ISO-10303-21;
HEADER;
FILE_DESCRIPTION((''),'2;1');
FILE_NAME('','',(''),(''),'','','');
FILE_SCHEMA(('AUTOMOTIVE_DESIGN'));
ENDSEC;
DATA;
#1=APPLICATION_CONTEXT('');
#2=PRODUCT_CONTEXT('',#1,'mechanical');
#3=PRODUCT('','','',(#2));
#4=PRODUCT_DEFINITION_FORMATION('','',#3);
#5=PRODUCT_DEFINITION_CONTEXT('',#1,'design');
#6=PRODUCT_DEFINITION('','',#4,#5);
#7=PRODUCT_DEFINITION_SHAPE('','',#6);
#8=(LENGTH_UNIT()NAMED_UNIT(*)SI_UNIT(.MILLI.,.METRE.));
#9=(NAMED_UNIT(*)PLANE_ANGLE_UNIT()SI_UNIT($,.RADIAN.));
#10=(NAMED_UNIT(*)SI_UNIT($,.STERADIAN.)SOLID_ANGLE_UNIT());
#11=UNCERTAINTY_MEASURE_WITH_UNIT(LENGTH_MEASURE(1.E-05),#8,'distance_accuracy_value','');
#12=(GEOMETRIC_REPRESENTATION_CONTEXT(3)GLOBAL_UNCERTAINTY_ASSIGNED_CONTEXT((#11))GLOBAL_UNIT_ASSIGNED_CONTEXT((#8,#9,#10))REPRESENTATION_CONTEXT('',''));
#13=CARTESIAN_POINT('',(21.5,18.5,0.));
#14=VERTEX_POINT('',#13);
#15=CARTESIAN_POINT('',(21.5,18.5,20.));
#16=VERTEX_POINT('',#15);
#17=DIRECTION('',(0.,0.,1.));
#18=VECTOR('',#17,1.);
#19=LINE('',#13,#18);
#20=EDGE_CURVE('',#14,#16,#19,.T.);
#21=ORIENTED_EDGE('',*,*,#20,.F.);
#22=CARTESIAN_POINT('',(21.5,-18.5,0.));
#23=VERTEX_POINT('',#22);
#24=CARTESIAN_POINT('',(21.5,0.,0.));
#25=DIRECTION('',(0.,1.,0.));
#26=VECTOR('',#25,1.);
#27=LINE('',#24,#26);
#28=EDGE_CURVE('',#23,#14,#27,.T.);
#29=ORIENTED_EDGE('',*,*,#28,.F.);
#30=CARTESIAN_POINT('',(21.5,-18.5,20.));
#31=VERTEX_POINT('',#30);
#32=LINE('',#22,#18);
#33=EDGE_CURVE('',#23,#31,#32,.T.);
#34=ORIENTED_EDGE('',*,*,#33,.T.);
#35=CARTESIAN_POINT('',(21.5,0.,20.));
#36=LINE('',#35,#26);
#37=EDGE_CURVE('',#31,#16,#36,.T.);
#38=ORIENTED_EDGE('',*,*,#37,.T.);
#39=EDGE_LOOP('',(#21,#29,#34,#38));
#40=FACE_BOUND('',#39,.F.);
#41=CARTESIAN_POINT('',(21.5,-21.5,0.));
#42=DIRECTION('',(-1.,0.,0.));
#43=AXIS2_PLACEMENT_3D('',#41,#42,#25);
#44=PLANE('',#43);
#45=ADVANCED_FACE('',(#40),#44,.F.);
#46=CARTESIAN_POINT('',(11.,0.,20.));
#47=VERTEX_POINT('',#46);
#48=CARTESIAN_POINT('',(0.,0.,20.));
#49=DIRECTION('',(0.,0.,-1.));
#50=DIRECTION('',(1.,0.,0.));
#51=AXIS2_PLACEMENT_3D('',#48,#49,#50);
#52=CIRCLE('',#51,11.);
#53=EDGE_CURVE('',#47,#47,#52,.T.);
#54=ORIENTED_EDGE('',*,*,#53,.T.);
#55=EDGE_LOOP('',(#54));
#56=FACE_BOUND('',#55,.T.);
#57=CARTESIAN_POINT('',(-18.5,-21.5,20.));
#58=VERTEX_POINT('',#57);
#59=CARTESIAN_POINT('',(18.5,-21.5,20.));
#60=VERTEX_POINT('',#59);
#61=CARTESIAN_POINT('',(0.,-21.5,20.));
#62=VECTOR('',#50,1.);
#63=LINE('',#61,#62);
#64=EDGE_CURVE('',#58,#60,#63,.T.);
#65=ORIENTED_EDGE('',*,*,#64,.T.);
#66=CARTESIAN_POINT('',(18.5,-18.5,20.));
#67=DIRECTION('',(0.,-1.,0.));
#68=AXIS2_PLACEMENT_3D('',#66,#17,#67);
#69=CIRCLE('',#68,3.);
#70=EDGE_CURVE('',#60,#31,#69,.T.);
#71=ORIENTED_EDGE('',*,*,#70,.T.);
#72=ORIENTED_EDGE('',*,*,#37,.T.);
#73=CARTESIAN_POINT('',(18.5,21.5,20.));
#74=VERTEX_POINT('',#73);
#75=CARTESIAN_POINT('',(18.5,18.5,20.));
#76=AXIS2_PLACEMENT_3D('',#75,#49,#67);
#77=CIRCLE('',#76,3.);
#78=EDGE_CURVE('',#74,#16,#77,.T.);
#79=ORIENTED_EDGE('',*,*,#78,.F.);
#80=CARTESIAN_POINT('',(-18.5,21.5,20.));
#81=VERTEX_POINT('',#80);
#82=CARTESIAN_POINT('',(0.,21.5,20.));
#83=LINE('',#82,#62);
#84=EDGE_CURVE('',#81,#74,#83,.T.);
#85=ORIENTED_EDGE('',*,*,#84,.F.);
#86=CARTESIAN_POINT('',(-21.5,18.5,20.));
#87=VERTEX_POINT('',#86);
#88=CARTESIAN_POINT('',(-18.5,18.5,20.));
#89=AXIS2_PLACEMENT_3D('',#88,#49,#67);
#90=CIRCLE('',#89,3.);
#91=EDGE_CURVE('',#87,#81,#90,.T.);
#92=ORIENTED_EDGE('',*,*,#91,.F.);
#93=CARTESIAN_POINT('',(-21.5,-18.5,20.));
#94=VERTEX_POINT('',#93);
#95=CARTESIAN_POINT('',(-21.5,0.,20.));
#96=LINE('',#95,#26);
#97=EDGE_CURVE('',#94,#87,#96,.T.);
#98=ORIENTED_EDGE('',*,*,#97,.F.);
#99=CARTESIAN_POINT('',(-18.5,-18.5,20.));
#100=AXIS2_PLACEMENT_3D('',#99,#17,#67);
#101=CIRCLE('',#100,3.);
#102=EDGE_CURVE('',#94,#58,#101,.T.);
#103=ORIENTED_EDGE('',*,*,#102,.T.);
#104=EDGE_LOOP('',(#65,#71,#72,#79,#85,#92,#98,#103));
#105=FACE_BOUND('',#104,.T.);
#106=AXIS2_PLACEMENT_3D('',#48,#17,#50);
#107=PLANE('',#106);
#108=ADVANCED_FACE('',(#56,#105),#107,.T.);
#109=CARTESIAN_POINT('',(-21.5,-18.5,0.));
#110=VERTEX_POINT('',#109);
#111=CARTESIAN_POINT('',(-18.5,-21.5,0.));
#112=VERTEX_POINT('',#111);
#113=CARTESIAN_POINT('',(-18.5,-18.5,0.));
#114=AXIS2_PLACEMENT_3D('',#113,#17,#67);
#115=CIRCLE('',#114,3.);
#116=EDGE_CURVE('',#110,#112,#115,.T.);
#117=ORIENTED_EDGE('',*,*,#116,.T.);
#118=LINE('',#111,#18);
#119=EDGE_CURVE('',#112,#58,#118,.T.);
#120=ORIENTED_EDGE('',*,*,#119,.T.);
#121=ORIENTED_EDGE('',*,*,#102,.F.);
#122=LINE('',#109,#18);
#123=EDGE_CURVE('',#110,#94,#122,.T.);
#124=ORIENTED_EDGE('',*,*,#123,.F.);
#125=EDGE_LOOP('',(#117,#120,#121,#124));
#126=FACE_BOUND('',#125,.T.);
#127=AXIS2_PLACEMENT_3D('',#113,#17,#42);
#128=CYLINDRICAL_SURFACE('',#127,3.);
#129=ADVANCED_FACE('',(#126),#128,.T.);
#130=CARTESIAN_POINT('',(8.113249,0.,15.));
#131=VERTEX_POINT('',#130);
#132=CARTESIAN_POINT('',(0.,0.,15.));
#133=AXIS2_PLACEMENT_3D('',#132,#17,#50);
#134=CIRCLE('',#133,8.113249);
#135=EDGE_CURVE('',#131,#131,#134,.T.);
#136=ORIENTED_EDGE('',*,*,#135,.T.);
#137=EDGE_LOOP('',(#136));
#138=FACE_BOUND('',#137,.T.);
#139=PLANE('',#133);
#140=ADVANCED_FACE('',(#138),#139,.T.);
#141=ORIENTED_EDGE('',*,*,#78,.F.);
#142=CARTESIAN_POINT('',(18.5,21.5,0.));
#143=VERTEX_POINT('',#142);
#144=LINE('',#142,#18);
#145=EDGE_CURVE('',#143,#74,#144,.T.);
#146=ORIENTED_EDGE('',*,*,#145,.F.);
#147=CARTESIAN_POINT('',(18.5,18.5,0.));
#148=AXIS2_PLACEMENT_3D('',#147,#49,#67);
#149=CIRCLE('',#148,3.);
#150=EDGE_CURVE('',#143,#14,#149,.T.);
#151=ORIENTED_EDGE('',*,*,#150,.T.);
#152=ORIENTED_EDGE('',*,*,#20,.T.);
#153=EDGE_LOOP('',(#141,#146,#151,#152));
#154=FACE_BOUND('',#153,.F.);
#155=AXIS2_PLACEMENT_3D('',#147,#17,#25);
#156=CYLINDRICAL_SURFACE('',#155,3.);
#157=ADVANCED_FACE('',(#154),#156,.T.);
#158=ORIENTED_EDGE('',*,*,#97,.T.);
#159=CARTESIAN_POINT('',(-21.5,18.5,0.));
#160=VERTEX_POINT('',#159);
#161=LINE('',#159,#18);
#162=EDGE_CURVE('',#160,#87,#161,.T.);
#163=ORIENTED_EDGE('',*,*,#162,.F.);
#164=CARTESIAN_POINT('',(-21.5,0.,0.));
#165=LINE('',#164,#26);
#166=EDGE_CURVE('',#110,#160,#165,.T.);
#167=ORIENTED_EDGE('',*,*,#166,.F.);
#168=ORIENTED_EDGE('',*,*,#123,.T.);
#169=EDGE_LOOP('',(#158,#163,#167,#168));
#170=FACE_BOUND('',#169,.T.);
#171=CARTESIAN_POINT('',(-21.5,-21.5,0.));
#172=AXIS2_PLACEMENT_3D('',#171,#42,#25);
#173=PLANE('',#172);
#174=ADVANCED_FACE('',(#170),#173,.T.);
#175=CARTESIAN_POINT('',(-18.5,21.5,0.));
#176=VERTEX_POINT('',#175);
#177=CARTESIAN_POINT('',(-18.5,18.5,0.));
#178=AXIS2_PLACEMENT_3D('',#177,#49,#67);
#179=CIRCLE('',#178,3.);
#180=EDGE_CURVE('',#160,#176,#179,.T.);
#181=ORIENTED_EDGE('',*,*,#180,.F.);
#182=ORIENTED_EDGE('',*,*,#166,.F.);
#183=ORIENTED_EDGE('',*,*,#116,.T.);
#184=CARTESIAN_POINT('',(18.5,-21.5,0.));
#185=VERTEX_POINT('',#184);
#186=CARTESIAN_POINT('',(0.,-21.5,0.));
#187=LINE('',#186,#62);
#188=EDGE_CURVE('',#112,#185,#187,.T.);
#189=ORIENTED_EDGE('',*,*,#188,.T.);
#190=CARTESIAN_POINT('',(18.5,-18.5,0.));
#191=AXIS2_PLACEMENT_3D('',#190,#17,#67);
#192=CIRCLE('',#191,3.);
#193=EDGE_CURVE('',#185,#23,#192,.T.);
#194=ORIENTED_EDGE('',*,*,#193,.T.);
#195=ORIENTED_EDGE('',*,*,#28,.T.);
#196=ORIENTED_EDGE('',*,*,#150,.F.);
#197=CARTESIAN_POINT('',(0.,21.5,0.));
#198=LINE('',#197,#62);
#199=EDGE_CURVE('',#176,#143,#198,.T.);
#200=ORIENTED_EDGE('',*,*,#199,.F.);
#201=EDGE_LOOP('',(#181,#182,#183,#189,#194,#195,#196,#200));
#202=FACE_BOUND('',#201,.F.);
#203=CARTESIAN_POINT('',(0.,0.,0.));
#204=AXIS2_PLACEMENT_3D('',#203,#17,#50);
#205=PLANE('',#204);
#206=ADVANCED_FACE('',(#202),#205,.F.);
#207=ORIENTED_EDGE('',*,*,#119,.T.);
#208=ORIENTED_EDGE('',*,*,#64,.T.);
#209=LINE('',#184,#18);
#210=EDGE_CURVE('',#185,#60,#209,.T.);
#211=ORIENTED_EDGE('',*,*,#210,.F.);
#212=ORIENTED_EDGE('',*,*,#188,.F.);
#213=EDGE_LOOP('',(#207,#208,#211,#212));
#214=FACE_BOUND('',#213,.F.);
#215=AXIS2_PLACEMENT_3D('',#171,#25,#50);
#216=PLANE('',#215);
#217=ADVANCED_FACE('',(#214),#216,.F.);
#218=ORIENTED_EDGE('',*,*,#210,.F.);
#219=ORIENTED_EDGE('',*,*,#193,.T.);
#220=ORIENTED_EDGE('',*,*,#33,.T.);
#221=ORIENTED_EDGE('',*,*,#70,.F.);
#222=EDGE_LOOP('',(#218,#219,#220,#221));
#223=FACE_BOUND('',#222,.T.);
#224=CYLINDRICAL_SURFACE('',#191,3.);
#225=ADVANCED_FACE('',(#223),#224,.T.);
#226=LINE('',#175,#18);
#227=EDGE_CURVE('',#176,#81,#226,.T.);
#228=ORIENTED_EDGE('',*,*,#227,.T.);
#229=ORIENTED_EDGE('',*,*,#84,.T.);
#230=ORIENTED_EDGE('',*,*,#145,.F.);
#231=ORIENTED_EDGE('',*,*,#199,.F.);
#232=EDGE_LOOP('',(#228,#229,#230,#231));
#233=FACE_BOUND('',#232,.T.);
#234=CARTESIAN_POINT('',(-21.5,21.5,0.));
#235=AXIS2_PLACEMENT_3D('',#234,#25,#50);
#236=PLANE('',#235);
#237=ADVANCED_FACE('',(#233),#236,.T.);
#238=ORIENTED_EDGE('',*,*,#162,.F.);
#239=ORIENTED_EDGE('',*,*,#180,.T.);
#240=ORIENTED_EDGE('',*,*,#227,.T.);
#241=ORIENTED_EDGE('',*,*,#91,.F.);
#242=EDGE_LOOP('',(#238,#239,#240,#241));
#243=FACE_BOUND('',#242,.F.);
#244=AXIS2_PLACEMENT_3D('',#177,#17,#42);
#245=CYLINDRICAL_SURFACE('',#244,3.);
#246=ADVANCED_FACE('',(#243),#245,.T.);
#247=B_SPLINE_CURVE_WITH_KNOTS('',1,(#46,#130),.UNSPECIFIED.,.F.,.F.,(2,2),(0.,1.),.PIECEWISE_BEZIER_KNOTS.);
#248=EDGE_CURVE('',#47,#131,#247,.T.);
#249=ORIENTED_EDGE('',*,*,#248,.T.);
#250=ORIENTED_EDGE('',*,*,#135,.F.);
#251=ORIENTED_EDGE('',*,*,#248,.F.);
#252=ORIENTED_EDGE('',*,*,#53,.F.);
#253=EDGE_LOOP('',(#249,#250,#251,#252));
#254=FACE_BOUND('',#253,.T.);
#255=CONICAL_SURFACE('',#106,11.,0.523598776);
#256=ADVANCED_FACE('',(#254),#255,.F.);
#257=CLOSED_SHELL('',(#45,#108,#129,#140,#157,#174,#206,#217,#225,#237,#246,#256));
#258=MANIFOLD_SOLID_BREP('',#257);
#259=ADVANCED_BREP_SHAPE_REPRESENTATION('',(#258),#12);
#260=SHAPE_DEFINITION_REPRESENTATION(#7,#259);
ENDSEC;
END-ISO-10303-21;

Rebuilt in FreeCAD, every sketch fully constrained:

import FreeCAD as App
import Part
import Sketcher
Q = App.Units.Quantity


def edges_at(feature, points):
    """Names of the edges that pass closest to the given points."""
    edges = feature.Shape.Edges
    near = lambda p: min(range(len(edges)), key=lambda i: edges[i].distToShape(Part.Vertex(*p))[0])
    return sorted({f"Edge{near(p) + 1}" for p in points})


def add_polygon(sketch, points):
    """Adds a closed chain of lines whose ends are joined by coincident constraints."""
    first, n = sketch.GeometryCount, len(points)
    for a, b in zip(points, points[1:] + points[:1]):
        sketch.addGeometry(Part.LineSegment(App.Vector(*a, 0), App.Vector(*b, 0)), False)
    for i in range(n):
        sketch.addConstraint(Sketcher.Constraint("Coincident", first + i, 2, first + (i + 1) % n, 1))

doc = App.newDocument("Part")
body = doc.addObject("PartDesign::Body", "Body")

# Sketch on XY plane
sketch1 = doc.addObject("Sketcher::SketchObject", "Sketch")
body.addObject(sketch1)
sketch1.AttachmentSupport = (doc.XY_Plane, [""])
sketch1.MapMode = "FlatFace"
add_polygon(sketch1, [(-21.5, 21.5), (-21.5, -21.5), (21.5, -21.5), (21.5, 21.5)])  # lines 0-3
sketch1.addConstraint(Sketcher.Constraint("Vertical", 0))
sketch1.addConstraint(Sketcher.Constraint("Horizontal", 1))
sketch1.addConstraint(Sketcher.Constraint("Vertical", 2))
sketch1.addConstraint(Sketcher.Constraint("Horizontal", 3))
sketch1.addConstraint(Sketcher.Constraint("Symmetric", 0, 2, 2, 2, -1, 1))
sketch1.addConstraint(Sketcher.Constraint("Equal", 3, 0))
sketch1.addConstraint(Sketcher.Constraint("DistanceX", 1, 1, 1, 2, Q("43 mm")))
pad1 = doc.addObject("PartDesign::Pad", "Pad")
body.addObject(pad1)
pad1.Profile = sketch1
pad1.Length = 20

# Sketch on XY plane
sketch2 = doc.addObject("Sketcher::SketchObject", "Sketch001")
body.addObject(sketch2)
sketch2.AttachmentSupport = (doc.XY_Plane, [""])
sketch2.MapMode = "FlatFace"
sketch2.AttachmentOffset = App.Placement(App.Vector(0, 0, 20), App.Rotation())
sketch2.addGeometry(Part.Circle(App.Vector(0, 0, 0), App.Vector(0, 0, 1), 11), False)
sketch2.addConstraint(Sketcher.Constraint("Coincident", 0, 3, -1, 1))
sketch2.addConstraint(Sketcher.Constraint("Diameter", 0, Q("22 mm")))
pocket1 = doc.addObject("PartDesign::Pocket", "Pocket")
body.addObject(pocket1)
pocket1.Profile = sketch2
pocket1.Length = 5
pocket1.TaperAngle = -30
doc.recompute()

fillet = doc.addObject("PartDesign::Fillet", "Fillet")
body.addObject(fillet)
fillet.Base = (pocket1, edges_at(pocket1, [
    (21.5, -21.5, 10),
    (21.5, 21.5, 10),
    (-21.5, -21.5, 10),
    (-21.5, 21.5, 10),
]))
fillet.Radius = 3

doc.recompute()
